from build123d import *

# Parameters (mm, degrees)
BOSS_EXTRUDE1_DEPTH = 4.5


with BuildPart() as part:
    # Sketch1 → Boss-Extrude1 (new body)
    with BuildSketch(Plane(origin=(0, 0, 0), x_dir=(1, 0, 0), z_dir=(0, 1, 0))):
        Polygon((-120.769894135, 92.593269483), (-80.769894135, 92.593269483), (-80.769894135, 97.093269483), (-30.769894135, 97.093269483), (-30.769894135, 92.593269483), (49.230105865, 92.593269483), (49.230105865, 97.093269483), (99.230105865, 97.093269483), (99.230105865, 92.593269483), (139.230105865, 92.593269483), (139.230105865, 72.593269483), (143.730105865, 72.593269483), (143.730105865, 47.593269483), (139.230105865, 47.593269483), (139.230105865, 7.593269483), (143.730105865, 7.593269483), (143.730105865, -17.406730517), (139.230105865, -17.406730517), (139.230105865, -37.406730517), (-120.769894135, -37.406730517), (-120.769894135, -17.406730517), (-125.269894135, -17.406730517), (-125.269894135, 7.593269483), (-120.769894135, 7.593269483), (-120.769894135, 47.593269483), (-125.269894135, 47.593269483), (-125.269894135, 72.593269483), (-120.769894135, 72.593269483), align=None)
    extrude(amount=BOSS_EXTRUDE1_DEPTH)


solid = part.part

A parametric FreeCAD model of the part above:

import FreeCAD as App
import Part
import Sketcher


def add_polygon(sketch, points):
    """Adds a closed chain of lines whose ends are joined by coincident constraints."""
    first, n = sketch.GeometryCount, len(points)
    for a, b in zip(points, points[1:] + points[:1]):
        sketch.addGeometry(Part.LineSegment(App.Vector(*a, 0), App.Vector(*b, 0)), False)
    for i in range(n):
        sketch.addConstraint(Sketcher.Constraint("Coincident", first + i, 2, first + (i + 1) % n, 1))

doc = App.newDocument("Part")
body = doc.addObject("PartDesign::Body", "Body")

# Sketch on XZ plane
sketch1 = body.newObject("Sketcher::SketchObject", "Sketch")
sketch1.AttachmentSupport = (doc.getObject("XZ_Plane"), [""])
sketch1.MapMode = "FlatFace"
add_polygon(sketch1, [(-80.8, -92.6), (-120.8, -92.6), (-120.8, -72.6), (-125.3, -72.6), (-125.3, -47.6), (-120.8, -47.6), (-120.8, -7.6), (-125.3, -7.6), (-125.3, 17.4), (-120.8, 17.4), (-120.8, 37.4), (139.2, 37.4), (139.2, 17.4), (143.7, 17.4), (143.7, -7.6), (139.2, -7.6), (139.2, -47.6), (143.7, -47.6), (143.7, -72.6), (139.2, -72.6), (139.2, -92.6), (99.2, -92.6), (99.2, -97.1), (49.2, -97.1), (49.2, -92.6), (-30.8, -92.6), (-30.8, -97.1), (-80.8, -97.1)])  # lines 0-27
sketch1.addConstraint(Sketcher.Constraint("Horizontal", 0))
sketch1.addConstraint(Sketcher.Constraint("Vertical", 1))
sketch1.addConstraint(Sketcher.Constraint("Horizontal", 2))
sketch1.addConstraint(Sketcher.Constraint("Vertical", 3))
sketch1.addConstraint(Sketcher.Constraint("Horizontal", 4))
sketch1.addConstraint(Sketcher.Constraint("Vertical", 5))
sketch1.addConstraint(Sketcher.Constraint("Horizontal", 6))
sketch1.addConstraint(Sketcher.Constraint("Vertical", 7))
sketch1.addConstraint(Sketcher.Constraint("Horizontal", 8))
sketch1.addConstraint(Sketcher.Constraint("Vertical", 9))
sketch1.addConstraint(Sketcher.Constraint("Horizontal", 10))
sketch1.addConstraint(Sketcher.Constraint("Vertical", 11))
sketch1.addConstraint(Sketcher.Constraint("Horizontal", 12))
sketch1.addConstraint(Sketcher.Constraint("Vertical", 13))
sketch1.addConstraint(Sketcher.Constraint("Horizontal", 14))
sketch1.addConstraint(Sketcher.Constraint("Vertical", 15))
sketch1.addConstraint(Sketcher.Constraint("Horizontal", 16))
sketch1.addConstraint(Sketcher.Constraint("Vertical", 17))
sketch1.addConstraint(Sketcher.Constraint("Horizontal", 18))
sketch1.addConstraint(Sketcher.Constraint("Vertical", 19))
sketch1.addConstraint(Sketcher.Constraint("Horizontal", 20))
sketch1.addConstraint(Sketcher.Constraint("Vertical", 21))
sketch1.addConstraint(Sketcher.Constraint("Horizontal", 22))
sketch1.addConstraint(Sketcher.Constraint("Vertical", 23))
sketch1.addConstraint(Sketcher.Constraint("Horizontal", 24))
sketch1.addConstraint(Sketcher.Constraint("Vertical", 25))
sketch1.addConstraint(Sketcher.Constraint("Horizontal", 26))
sketch1.addConstraint(Sketcher.Constraint("Vertical", 27))
sketch1.addConstraint(Sketcher.Constraint("Horizontal", 8, 2, 11, 2))
sketch1.addConstraint(Sketcher.Constraint("Horizontal", 6, 2, 13, 2))
sketch1.addConstraint(Sketcher.Constraint("Horizontal", 4, 2, 15, 2))
sketch1.addConstraint(Sketcher.Constraint("Horizontal", 2, 2, 17, 2))
sketch1.addConstraint(Sketcher.Constraint("Horizontal", 0, 2, 19, 2))
sketch1.addConstraint(Sketcher.Constraint("Horizontal", 20, 2, 23, 2))
sketch1.addConstraint(Sketcher.Constraint("Horizontal", 22, 2, 25, 2))
sketch1.addConstraint(Sketcher.Constraint("Vertical", 1, 2, 4, 2))
sketch1.addConstraint(Sketcher.Constraint("Vertical", 3, 2, 6, 2))
sketch1.addConstraint(Sketcher.Constraint("Vertical", 5, 2, 8, 2))
sketch1.addConstraint(Sketcher.Constraint("Vertical", 11, 2, 14, 2))
sketch1.addConstraint(Sketcher.Constraint("Vertical", 13, 2, 16, 2))
sketch1.addConstraint(Sketcher.Constraint("Vertical", 15, 2, 18, 2))
sketch1.addConstraint(Sketcher.Constraint("Equal", 8, 12))
sketch1.addConstraint(Sketcher.Constraint("Equal", 0, 20))
sketch1.addConstraint(Sketcher.Constraint("Equal", 22, 26))
sketch1.addConstraint(Sketcher.Constraint("Equal", 20, 5))
sketch1.addConstraint(Sketcher.Constraint("Equal", 3, 7))
sketch1.addConstraint(Sketcher.Constraint("Equal", 1, 9))
sketch1.addConstraint(Sketcher.Constraint("Equal", 18, 21))
sketch1.addConstraint(Sketcher.Constraint("DistanceX", 0, 2, 0, 1, 40.0))
sketch1.addConstraint(Sketcher.Constraint("DistanceX", 10, 1, 10, 2, 260.0))
sketch1.addConstraint(Sketcher.Constraint("DistanceX", 22, 2, 22, 1, 50.0))
sketch1.addConstraint(Sketcher.Constraint("DistanceY", 1, 1, 1, 2, 20.0))
sketch1.addConstraint(Sketcher.Constraint("DistanceY", 3, 1, 3, 2, 25.0))
sketch1.addConstraint(Sketcher.Constraint("DistanceX", 2, 2, 2, 1, 4.5))
sketch1.addConstraint(Sketcher.Constraint("DistanceY", 0, 2, -1, 1, 92.593269))
sketch1.addConstraint(Sketcher.Constraint("DistanceX", 0, 2, -1, 1, 120.769894))
pad1 = body.newObject("PartDesign::Pad", "Pad")
pad1.Profile = sketch1
pad1.Length = 4.5
pad1.Reversed = True

doc.recompute()
